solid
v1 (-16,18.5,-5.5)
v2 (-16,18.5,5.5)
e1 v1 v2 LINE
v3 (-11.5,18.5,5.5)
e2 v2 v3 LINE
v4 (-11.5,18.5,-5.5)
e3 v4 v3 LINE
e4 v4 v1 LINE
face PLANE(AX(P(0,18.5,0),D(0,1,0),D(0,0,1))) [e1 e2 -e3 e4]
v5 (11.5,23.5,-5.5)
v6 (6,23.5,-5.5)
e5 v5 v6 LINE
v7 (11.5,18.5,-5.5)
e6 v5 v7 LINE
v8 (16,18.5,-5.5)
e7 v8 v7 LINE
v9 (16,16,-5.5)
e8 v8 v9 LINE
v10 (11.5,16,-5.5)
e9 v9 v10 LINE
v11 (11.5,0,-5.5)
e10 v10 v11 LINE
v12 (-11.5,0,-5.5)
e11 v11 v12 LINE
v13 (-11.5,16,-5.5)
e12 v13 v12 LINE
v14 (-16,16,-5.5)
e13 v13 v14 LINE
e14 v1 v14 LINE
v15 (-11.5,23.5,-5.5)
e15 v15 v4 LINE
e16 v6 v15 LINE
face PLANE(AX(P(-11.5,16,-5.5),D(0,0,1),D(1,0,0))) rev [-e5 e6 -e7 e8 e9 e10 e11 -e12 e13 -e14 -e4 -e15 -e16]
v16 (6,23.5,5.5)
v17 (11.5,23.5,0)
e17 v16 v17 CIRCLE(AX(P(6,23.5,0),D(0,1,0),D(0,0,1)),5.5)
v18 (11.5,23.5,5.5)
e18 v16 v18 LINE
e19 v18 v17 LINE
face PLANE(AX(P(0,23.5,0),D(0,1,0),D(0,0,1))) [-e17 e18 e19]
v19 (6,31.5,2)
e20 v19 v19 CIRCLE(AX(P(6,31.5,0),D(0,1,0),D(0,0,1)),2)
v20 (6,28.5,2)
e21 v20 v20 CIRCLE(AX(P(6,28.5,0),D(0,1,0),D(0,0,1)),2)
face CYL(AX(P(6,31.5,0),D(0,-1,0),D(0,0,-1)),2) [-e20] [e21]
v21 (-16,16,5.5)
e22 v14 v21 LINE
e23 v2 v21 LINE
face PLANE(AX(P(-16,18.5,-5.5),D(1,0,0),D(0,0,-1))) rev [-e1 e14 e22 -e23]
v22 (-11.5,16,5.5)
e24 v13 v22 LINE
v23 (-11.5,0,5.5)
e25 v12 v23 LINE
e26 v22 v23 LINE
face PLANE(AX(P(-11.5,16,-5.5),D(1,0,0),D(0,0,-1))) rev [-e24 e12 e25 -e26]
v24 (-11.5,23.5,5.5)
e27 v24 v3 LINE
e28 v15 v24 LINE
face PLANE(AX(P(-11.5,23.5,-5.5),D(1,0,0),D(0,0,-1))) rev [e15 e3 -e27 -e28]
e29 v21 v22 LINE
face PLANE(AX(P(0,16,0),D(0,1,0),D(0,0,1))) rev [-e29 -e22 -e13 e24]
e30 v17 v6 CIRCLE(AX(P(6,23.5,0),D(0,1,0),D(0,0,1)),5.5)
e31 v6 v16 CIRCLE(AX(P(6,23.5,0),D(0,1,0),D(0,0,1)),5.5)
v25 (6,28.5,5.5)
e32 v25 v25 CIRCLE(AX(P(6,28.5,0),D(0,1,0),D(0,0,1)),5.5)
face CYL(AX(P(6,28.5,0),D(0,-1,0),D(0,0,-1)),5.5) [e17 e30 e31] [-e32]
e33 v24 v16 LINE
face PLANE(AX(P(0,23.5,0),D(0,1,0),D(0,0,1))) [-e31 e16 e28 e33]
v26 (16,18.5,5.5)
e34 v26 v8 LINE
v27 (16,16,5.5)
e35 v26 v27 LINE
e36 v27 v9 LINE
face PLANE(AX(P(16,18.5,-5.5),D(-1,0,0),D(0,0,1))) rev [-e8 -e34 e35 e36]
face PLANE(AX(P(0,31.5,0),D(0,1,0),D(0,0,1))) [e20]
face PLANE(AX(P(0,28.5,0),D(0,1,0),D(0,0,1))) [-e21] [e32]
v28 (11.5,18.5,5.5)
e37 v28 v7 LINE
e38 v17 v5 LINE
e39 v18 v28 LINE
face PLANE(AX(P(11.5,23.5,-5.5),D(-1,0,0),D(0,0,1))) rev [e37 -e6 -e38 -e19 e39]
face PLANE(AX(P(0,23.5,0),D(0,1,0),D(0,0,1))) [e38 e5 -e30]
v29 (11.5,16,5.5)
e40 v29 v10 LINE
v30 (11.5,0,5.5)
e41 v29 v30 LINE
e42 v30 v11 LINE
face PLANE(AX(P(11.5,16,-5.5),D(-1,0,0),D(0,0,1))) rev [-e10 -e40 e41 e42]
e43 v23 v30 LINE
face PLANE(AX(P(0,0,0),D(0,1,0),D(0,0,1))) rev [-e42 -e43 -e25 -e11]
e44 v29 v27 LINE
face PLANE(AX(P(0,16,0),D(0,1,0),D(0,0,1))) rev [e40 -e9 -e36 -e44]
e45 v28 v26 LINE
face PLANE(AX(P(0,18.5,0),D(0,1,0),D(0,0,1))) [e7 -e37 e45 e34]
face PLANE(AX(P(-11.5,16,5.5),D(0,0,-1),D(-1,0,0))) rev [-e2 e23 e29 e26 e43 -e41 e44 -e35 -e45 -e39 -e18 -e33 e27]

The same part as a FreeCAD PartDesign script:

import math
import FreeCAD as App
import Part
import Sketcher

V = App.Vector


def add_polygon(sketch, points):
    """Adds a closed chain of lines whose ends are joined by coincident constraints."""
    first, n = sketch.GeometryCount, len(points)
    for a, b in zip(points, points[1:] + points[:1]):
        sketch.addGeometry(Part.LineSegment(App.Vector(*a, 0), App.Vector(*b, 0)), False)
    for i in range(n):
        sketch.addConstraint(Sketcher.Constraint("Coincident", first + i, 2, first + (i + 1) % n, 1))

doc = App.newDocument("Part")
params = doc.addObject("Spreadsheet::Sheet", "Params")
for row, (alias, value) in enumerate([
    ("sketch1_width", "23 mm"),
    ("sketch1_height", "11 mm"),
    ("pad1_length", "16 mm"),
    ("sketch2_width", "32 mm"),
    ("sketch2_height", "11 mm"),
    ("pad2_length", "2.5 mm"),
    ("sketch3_width", "23 mm"),
    ("sketch3_height", "11 mm"),
    ("pad3_length", "5 mm"),
    ("sketch4_radius", "5.5 mm"),
    ("pad4_length", "5 mm"),
    ("sketch5_radius", "2 mm"),
    ("pad5_length", "3 mm"),
], start=1):
    params.set(f"A{row}", alias)
    params.set(f"B{row}", "=" + value)
    params.setAlias(f"B{row}", alias)

body = doc.addObject("PartDesign::Body", "Body")

# Sketch on XZ plane
sketch1 = body.newObject("Sketcher::SketchObject", "Sketch")
sketch1.AttachmentSupport = (doc.getObject("XZ_Plane"), [""])
sketch1.MapMode = "FlatFace"
add_polygon(sketch1, [(-11.5, -5.5), (-11.5, 5.5), (11.5, 5.5), (11.5, -5.5)])  # lines 0-3
sketch1.addConstraint([
    Sketcher.Constraint("Vertical", 0),
    Sketcher.Constraint("Horizontal", 1),
    Sketcher.Constraint("Vertical", 2),
    Sketcher.Constraint("Horizontal", 3),
    Sketcher.Constraint("Symmetric", 0, 2, 2, 2, -1, 1),
    Sketcher.Constraint("DistanceX", 1, 1, 1, 2, 23.0),
    Sketcher.Constraint("DistanceY", 0, 1, 0, 2, 11.0),
])
sketch1.setExpression("Constraints[9]", "Params.sketch1_width")
sketch1.setExpression("Constraints[10]", "Params.sketch1_height")
pad1 = body.newObject("PartDesign::Pad", "Pad")
pad1.Profile = sketch1
pad1.setExpression("Length", "Params.pad1_length")
pad1.Reversed = True

# Sketch on XZ plane
sketch2 = body.newObject("Sketcher::SketchObject", "Sketch001")
sketch2.AttachmentSupport = (doc.getObject("XZ_Plane"), [""])
sketch2.MapMode = "FlatFace"
sketch2.AttachmentOffset = App.Placement(V(0, 0, -16), App.Rotation())
add_polygon(sketch2, [(-16, -5.5), (-16, 5.5), (16, 5.5), (16, -5.5)])  # lines 0-3
sketch2.addConstraint([
    Sketcher.Constraint("Vertical", 0),
    Sketcher.Constraint("Horizontal", 1),
    Sketcher.Constraint("Vertical", 2),
    Sketcher.Constraint("Horizontal", 3),
    Sketcher.Constraint("Symmetric", 0, 2, 2, 2, -1, 1),
    Sketcher.Constraint("DistanceX", 1, 1, 1, 2, 32.0),
    Sketcher.Constraint("DistanceY", 0, 1, 0, 2, 11.0),
])
sketch2.setExpression("Constraints[9]", "Params.sketch2_width")
sketch2.setExpression("Constraints[10]", "Params.sketch2_height")
pad2 = body.newObject("PartDesign::Pad", "Pad001")
pad2.Profile = sketch2
pad2.setExpression("Length", "Params.pad2_length")
pad2.Reversed = True

# Sketch on XZ plane
sketch3 = body.newObject("Sketcher::SketchObject", "Sketch002")
sketch3.AttachmentSupport = (doc.getObject("XZ_Plane"), [""])
sketch3.MapMode = "FlatFace"
sketch3.AttachmentOffset = App.Placement(V(0, 0, -18.5), App.Rotation())
add_polygon(sketch3, [(-11.5, -5.5), (-11.5, 5.5), (11.5, 5.5), (11.5, -5.5)])  # lines 0-3
sketch3.addConstraint([
    Sketcher.Constraint("Vertical", 0),
    Sketcher.Constraint("Horizontal", 1),
    Sketcher.Constraint("Vertical", 2),
    Sketcher.Constraint("Horizontal", 3),
    Sketcher.Constraint("Symmetric", 0, 2, 2, 2, -1, 1),
    Sketcher.Constraint("DistanceX", 1, 1, 1, 2, 23.0),
    Sketcher.Constraint("DistanceY", 0, 1, 0, 2, 11.0),
])
sketch3.setExpression("Constraints[9]", "Params.sketch3_width")
sketch3.setExpression("Constraints[10]", "Params.sketch3_height")
pad3 = body.newObject("PartDesign::Pad", "Pad002")
pad3.Profile = sketch3
pad3.setExpression("Length", "Params.pad3_length")
pad3.Reversed = True

# Sketch on XZ plane
sketch4 = body.newObject("Sketcher::SketchObject", "Sketch003")
sketch4.AttachmentSupport = (doc.getObject("XZ_Plane"), [""])
sketch4.MapMode = "FlatFace"
sketch4.AttachmentOffset = App.Placement(V(0, 0, -23.5), App.Rotation())
sketch4.addGeometry([
    Part.ArcOfCircle(Part.Circle(V(6, 0, 0), V(0, 0, 1), 5.5), math.radians(90), math.radians(360)),
    Part.ArcOfCircle(Part.Circle(V(6, 0, 0), V(0, 0, 1), 5.5), math.radians(0), math.radians(90)),
], False)
sketch4.addConstraint([
    Sketcher.Constraint("Tangent", 0, 1, 1, 2),
    Sketcher.Constraint("Coincident", 1, 1, 0, 2),
    Sketcher.Constraint("PointOnObject", 0, 3, -1),
    Sketcher.Constraint("PointOnObject", 1, 1, -1),
    Sketcher.Constraint("Vertical", 1, 3, 0, 1),
    Sketcher.Constraint("Radius", 0, 5.5),
    Sketcher.Constraint("DistanceX", -1, 1, 0, 3, 6.0),
])
sketch4.setExpression("Constraints[5]", "Params.sketch4_radius")
pad4 = body.newObject("PartDesign::Pad", "Pad003")
pad4.Profile = sketch4
pad4.setExpression("Length", "Params.pad4_length")
pad4.Reversed = True

# Sketch on XZ plane
sketch5 = body.newObject("Sketcher::SketchObject", "Sketch004")
sketch5.AttachmentSupport = (doc.getObject("XZ_Plane"), [""])
sketch5.MapMode = "FlatFace"
sketch5.AttachmentOffset = App.Placement(V(0, 0, -28.5), App.Rotation())
sketch5.addGeometry([
    Part.ArcOfCircle(Part.Circle(V(6, 0, 0), V(0, 0, 1), 2), math.radians(90), math.radians(360)),
    Part.ArcOfCircle(Part.Circle(V(6, 0, 0), V(0, 0, 1), 2), math.radians(0), math.radians(90)),
], False)
sketch5.addConstraint([
    Sketcher.Constraint("Tangent", 0, 1, 1, 2),
    Sketcher.Constraint("Coincident", 1, 1, 0, 2),
    Sketcher.Constraint("PointOnObject", 0, 3, -1),
    Sketcher.Constraint("PointOnObject", 1, 1, -1),
    Sketcher.Constraint("Vertical", 1, 3, 0, 1),
    Sketcher.Constraint("Radius", 0, 2.0),
    Sketcher.Constraint("DistanceX", -1, 1, 0, 3, 6.0),
])
sketch5.setExpression("Constraints[5]", "Params.sketch5_radius")
pad5 = body.newObject("PartDesign::Pad", "Pad004")
pad5.Profile = sketch5
pad5.setExpression("Length", "Params.pad5_length")
pad5.Reversed = True

doc.recompute()
